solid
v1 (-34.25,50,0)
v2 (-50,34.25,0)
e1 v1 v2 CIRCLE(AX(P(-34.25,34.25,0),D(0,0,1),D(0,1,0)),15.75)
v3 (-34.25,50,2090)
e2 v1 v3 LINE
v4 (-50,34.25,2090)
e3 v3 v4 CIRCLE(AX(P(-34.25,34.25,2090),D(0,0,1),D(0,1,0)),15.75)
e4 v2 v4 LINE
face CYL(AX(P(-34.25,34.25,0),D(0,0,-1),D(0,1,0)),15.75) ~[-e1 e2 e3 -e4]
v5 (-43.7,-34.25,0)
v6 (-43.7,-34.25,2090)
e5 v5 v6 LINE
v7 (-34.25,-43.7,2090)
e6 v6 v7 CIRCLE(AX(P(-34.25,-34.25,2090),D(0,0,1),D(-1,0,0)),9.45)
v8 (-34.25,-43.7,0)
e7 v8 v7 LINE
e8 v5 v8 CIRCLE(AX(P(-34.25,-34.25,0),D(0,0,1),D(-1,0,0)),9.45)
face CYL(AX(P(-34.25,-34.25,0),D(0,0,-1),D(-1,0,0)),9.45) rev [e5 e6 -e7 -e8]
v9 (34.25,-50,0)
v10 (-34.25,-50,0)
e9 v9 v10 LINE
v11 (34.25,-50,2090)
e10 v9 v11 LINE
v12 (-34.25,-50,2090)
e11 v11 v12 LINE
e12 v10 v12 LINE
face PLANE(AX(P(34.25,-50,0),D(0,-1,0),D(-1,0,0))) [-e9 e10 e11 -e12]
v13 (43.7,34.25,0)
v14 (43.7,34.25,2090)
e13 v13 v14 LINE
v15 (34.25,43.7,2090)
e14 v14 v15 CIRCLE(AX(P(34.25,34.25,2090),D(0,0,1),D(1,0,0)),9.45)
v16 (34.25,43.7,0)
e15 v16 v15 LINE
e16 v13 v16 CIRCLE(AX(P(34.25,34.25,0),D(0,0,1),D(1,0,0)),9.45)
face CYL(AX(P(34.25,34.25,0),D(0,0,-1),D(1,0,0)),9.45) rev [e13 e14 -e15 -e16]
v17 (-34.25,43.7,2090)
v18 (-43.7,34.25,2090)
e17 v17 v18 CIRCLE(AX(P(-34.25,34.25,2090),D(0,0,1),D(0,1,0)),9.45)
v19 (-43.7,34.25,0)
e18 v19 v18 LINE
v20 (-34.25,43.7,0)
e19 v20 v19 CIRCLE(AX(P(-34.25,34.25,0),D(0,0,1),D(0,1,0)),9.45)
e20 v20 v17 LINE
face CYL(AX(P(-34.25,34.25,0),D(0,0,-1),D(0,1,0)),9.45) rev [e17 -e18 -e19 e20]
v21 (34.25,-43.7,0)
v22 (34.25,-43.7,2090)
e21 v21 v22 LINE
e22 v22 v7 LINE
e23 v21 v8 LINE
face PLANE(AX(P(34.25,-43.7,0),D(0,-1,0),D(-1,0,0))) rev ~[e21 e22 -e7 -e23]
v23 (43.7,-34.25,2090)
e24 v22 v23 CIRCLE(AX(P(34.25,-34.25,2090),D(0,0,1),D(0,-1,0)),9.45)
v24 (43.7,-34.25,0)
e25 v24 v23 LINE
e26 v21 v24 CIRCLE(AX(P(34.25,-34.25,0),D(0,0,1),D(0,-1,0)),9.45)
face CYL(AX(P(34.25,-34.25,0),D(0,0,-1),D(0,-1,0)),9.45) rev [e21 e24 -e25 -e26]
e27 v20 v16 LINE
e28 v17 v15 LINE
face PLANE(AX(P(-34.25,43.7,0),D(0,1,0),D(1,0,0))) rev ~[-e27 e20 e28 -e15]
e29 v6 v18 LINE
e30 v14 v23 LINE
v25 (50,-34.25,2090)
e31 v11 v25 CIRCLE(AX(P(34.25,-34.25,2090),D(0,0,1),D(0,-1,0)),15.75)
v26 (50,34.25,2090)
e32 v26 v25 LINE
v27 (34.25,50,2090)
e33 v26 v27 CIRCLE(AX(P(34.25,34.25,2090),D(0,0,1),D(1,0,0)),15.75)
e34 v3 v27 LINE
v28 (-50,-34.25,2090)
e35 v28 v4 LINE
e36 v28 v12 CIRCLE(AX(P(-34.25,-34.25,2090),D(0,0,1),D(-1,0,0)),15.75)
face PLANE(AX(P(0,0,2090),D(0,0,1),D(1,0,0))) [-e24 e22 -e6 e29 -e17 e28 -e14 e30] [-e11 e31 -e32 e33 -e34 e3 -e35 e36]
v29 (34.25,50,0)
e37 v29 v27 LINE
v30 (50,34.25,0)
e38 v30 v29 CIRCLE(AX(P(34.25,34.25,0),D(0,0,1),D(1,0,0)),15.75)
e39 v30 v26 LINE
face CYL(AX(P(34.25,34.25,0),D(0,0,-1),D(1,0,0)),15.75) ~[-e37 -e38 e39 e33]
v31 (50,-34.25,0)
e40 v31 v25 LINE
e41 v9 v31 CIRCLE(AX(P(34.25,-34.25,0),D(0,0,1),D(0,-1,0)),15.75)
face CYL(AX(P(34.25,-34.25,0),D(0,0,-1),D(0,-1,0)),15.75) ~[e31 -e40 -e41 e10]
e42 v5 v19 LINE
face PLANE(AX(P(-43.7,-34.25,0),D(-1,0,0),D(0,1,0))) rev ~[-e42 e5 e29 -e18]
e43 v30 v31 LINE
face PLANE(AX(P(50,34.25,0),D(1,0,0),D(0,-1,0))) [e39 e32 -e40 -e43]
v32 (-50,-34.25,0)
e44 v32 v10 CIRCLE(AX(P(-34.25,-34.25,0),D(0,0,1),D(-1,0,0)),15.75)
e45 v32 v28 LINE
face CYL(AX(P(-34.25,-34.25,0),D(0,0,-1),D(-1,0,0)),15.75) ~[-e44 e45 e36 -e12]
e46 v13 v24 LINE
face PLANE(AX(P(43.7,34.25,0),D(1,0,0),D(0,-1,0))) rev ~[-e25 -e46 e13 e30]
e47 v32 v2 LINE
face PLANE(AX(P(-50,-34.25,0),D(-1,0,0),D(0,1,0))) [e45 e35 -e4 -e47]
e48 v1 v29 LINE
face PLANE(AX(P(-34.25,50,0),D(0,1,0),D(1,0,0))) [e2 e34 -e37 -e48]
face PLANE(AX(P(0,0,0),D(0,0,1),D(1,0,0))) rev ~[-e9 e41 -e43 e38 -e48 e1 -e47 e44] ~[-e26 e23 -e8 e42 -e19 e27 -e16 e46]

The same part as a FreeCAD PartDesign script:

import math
import FreeCAD as App
import Part
import Sketcher

doc = App.newDocument("Part")
params = doc.addObject("Spreadsheet::Sheet", "Params")
for row, (alias, value) in enumerate([
    ("sketch1_radius", "15.75 mm"),
    ("pad1_length", "2090 mm"),
], start=1):
    params.set(f"A{row}", alias)
    params.set(f"B{row}", "=" + value)
    params.setAlias(f"B{row}", alias)

body = doc.addObject("PartDesign::Body", "Body")

# Sketch on XY plane
sketch1 = body.newObject("Sketcher::SketchObject", "Sketch")
sketch1.AttachmentSupport = (doc.getObject("XY_Plane"), [""])
sketch1.MapMode = "FlatFace"
sketch1.addGeometry(Part.LineSegment(App.Vector(-50, 34, 0), App.Vector(-50, -34, 0)), False)
sketch1.addGeometry(Part.ArcOfCircle(Part.Circle(App.Vector(-34, -34, 0), App.Vector(0, 0, 1), 16), math.radians(180), math.radians(270)), False)
sketch1.addGeometry(Part.LineSegment(App.Vector(-34, -50, 0), App.Vector(34, -50, 0)), False)
sketch1.addGeometry(Part.ArcOfCircle(Part.Circle(App.Vector(34, -34, 0), App.Vector(0, 0, 1), 16), math.radians(-90), math.radians(0)), False)
sketch1.addGeometry(Part.LineSegment(App.Vector(50, -34, 0), App.Vector(50, 34, 0)), False)
sketch1.addGeometry(Part.ArcOfCircle(Part.Circle(App.Vector(34, 34, 0), App.Vector(0, 0, 1), 16), math.radians(0), math.radians(90)), False)
sketch1.addGeometry(Part.LineSegment(App.Vector(34, 50, 0), App.Vector(-34, 50, 0)), False)
sketch1.addGeometry(Part.ArcOfCircle(Part.Circle(App.Vector(-34, 34, 0), App.Vector(0, 0, 1), 16), math.radians(90), math.radians(180)), False)
sketch1.addGeometry(Part.ArcOfCircle(Part.Circle(App.Vector(-34, 34, 0), App.Vector(0, 0, 1), 9), math.radians(90), math.radians(180)), False)
sketch1.addGeometry(Part.LineSegment(App.Vector(-34, 44, 0), App.Vector(34, 44, 0)), False)
sketch1.addGeometry(Part.ArcOfCircle(Part.Circle(App.Vector(34, 34, 0), App.Vector(0, 0, 1), 9), math.radians(0), math.radians(90)), False)
sketch1.addGeometry(Part.LineSegment(App.Vector(44, 34, 0), App.Vector(44, -34, 0)), False)
sketch1.addGeometry(Part.ArcOfCircle(Part.Circle(App.Vector(34, -34, 0), App.Vector(0, 0, 1), 9), math.radians(-90), math.radians(0)), False)
sketch1.addGeometry(Part.LineSegment(App.Vector(34, -44, 0), App.Vector(-34, -44, 0)), False)
sketch1.addGeometry(Part.ArcOfCircle(Part.Circle(App.Vector(-34, -34, 0), App.Vector(0, 0, 1), 9), math.radians(180), math.radians(270)), False)
sketch1.addGeometry(Part.LineSegment(App.Vector(-44, -34, 0), App.Vector(-44, 34, 0)), False)
sketch1.addConstraint(Sketcher.Constraint("Tangent", 0, 2, 1, 1))
sketch1.addConstraint(Sketcher.Constraint("Tangent", 1, 2, 2, 1))
sketch1.addConstraint(Sketcher.Constraint("Tangent", 2, 2, 3, 1))
sketch1.addConstraint(Sketcher.Constraint("Tangent", 3, 2, 4, 1))
sketch1.addConstraint(Sketcher.Constraint("Tangent", 4, 2, 5, 1))
sketch1.addConstraint(Sketcher.Constraint("Tangent", 5, 2, 6, 1))
sketch1.addConstraint(Sketcher.Constraint("Tangent", 6, 2, 7, 1))
sketch1.addConstraint(Sketcher.Constraint("Tangent", 7, 2, 0, 1))
sketch1.addConstraint(Sketcher.Constraint("Tangent", 8, 1, 9, 1))
sketch1.addConstraint(Sketcher.Constraint("Tangent", 9, 2, 10, 2))
sketch1.addConstraint(Sketcher.Constraint("Tangent", 10, 1, 11, 1))
sketch1.addConstraint(Sketcher.Constraint("Tangent", 11, 2, 12, 2))
sketch1.addConstraint(Sketcher.Constraint("Tangent", 12, 1, 13, 1))
sketch1.addConstraint(Sketcher.Constraint("Tangent", 13, 2, 14, 2))
sketch1.addConstraint(Sketcher.Constraint("Tangent", 14, 1, 15, 1))
sketch1.addConstraint(Sketcher.Constraint("Tangent", 15, 2, 8, 2))
sketch1.addConstraint(Sketcher.Constraint("Vertical", 0))
sketch1.addConstraint(Sketcher.Constraint("Horizontal", 2))
sketch1.addConstraint(Sketcher.Constraint("Vertical", 4))
sketch1.addConstraint(Sketcher.Constraint("Horizontal", 6))
sketch1.addConstraint(Sketcher.Constraint("Horizontal", 9))
sketch1.addConstraint(Sketcher.Constraint("Vertical", 11))
sketch1.addConstraint(Sketcher.Constraint("Horizontal", 13))
sketch1.addConstraint(Sketcher.Constraint("Vertical", 15))
sketch1.addConstraint(Sketcher.Constraint("Coincident", 8, 3, 7, 3))
sketch1.addConstraint(Sketcher.Constraint("Coincident", 10, 3, 5, 3))
sketch1.addConstraint(Sketcher.Constraint("Coincident", 12, 3, 3, 3))
sketch1.addConstraint(Sketcher.Constraint("Equal", 1, 3))
sketch1.addConstraint(Sketcher.Constraint("Equal", 3, 5))
sketch1.addConstraint(Sketcher.Constraint("Equal", 5, 7))
sketch1.addConstraint(Sketcher.Constraint("Equal", 12, 14))
sketch1.addConstraint(Sketcher.Constraint("Symmetric", 1, 3, 5, 3, -1, 1))
sketch1.addConstraint(Sketcher.Constraint("Equal", 13, 0))
sketch1.addConstraint(Sketcher.Constraint("Radius", 1, 15.75))
sketch1.addConstraint(Sketcher.Constraint("DistanceX", 0, 2, -1, 1, 50.0))
sketch1.addConstraint(Sketcher.Constraint("DistanceY", 8, 1, 6, 2, 6.3))
sketch1.setExpression("Constraints[33]", "Params.sketch1_radius")
pad1 = body.newObject("PartDesign::Pad", "Pad")
pad1.Profile = sketch1
pad1.setExpression("Length", "Params.pad1_length")

doc.recompute()
